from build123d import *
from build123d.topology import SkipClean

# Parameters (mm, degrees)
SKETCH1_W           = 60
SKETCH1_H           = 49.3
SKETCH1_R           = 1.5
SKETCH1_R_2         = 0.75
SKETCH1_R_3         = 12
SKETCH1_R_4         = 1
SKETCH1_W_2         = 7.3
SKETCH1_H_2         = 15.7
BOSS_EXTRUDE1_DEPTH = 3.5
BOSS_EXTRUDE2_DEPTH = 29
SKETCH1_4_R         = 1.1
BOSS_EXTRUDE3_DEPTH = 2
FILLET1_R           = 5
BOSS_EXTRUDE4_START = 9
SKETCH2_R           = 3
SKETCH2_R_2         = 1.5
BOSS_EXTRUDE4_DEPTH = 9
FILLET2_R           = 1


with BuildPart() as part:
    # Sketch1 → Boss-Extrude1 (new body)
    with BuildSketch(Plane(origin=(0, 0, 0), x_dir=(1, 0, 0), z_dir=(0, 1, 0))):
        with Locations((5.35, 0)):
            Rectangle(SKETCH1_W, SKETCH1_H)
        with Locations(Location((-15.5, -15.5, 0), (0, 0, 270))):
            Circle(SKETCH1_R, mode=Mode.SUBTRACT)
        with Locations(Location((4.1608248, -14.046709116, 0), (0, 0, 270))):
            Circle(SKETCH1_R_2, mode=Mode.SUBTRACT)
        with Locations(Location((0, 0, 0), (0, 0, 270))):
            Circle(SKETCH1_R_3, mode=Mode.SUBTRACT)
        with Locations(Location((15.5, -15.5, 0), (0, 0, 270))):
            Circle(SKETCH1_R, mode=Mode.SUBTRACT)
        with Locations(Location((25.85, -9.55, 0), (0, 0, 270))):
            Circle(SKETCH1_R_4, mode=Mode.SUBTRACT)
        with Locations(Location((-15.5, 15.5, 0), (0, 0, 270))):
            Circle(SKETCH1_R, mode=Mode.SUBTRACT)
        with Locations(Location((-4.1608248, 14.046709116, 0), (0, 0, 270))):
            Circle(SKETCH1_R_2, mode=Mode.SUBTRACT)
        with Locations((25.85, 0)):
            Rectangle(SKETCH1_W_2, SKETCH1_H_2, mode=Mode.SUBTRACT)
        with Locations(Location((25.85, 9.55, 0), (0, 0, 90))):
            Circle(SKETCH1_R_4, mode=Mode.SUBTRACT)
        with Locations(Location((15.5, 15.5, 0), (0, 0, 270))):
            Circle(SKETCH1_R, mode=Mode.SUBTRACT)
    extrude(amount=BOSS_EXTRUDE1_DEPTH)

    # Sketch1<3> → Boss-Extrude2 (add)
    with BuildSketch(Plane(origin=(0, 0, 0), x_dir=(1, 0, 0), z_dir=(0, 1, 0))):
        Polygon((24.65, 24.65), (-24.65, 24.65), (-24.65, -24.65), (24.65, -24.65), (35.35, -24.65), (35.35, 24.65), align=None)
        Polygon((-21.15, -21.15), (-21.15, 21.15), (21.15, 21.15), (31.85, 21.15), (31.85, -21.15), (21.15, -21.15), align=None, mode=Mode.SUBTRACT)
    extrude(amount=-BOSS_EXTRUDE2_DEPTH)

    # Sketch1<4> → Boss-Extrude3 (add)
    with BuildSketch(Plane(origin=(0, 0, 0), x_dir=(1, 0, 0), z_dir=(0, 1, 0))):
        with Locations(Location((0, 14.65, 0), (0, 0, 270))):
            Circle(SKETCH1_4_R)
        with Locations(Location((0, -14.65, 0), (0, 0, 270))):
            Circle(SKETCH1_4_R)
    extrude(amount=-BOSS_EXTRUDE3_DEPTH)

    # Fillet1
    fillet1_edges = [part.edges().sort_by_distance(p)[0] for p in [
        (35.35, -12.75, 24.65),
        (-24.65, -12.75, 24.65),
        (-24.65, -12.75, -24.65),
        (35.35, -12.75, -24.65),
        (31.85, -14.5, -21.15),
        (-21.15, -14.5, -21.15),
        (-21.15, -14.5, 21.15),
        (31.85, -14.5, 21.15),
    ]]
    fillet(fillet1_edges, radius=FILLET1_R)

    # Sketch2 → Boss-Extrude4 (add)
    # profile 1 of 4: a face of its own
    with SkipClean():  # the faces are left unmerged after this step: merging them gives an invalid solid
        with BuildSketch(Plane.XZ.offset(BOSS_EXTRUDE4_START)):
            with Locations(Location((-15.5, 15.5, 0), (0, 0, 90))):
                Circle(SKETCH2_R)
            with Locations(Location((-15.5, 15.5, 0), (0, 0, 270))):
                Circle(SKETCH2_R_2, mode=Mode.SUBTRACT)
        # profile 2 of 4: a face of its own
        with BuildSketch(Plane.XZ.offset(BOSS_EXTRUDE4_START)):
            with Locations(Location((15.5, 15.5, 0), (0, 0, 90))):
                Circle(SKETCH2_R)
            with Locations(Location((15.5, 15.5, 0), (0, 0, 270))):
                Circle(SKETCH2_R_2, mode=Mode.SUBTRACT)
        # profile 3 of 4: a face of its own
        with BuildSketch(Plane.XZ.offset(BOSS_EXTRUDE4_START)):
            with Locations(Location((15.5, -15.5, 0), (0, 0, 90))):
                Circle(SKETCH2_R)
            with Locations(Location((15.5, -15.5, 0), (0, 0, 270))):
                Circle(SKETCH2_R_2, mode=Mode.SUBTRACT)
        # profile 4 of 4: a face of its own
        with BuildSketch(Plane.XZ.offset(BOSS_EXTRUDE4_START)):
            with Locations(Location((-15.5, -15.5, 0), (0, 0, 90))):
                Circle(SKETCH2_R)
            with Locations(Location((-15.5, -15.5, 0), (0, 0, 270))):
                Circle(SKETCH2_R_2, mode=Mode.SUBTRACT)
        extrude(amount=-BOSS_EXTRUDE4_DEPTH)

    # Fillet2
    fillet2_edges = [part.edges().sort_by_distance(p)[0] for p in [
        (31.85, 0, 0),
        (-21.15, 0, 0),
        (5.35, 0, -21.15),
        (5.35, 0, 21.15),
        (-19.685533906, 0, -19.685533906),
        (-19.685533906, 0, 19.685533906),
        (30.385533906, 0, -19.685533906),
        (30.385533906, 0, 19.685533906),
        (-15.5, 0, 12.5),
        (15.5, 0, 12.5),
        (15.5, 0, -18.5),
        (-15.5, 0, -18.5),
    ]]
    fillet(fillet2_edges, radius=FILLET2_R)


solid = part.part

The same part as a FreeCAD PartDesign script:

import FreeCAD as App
import Part
import Sketcher
from FreeCAD import Vector
Q = App.Units.Quantity


def edges_at(feature, points):
    """Names of the edges that pass closest to the given points."""
    edges = feature.Shape.Edges
    near = lambda p: min(range(len(edges)), key=lambda i: edges[i].distToShape(Part.Vertex(*p))[0])
    return sorted({f"Edge{near(p) + 1}" for p in points})

doc = App.newDocument("Part")
body = doc.addObject("PartDesign::Body", "Body")

sketch1 = body.newObject("Sketcher::SketchObject", "Sketch")
sketch1.AttachmentSupport = (doc.getObject("XZ_Plane"), [""])
sketch1.MapMode = "FlatFace"
sketch1.addGeometry([
    Part.LineSegment(Vector(-24.6, -24.6, 0), Vector(-24.6, 24.6, 0)),
    Part.LineSegment(Vector(-24.6, 24.6, 0), Vector(35.4, 24.6, 0)),
    Part.LineSegment(Vector(35.4, 24.6, 0), Vector(35.4, -24.6, 0)),
    Part.LineSegment(Vector(35.4, -24.6, 0), Vector(-24.6, -24.6, 0)),
    Part.Circle(Vector(-15.5, 15.5, 0), Vector(0, 0, 1), 1.5),
    Part.Circle(Vector(4.2, 14, 0), Vector(0, 0, 1), 0.8),
    Part.Circle(Vector(15.5, 15.5, 0), Vector(0, 0, 1), 1.5),
    Part.Circle(Vector(25.9, 9.6, 0), Vector(0, 0, 1), 1),
    Part.Circle(Vector(0, 0, 0), Vector(0, 0, 1), 12),
    Part.Circle(Vector(-15.5, -15.5, 0), Vector(0, 0, 1), 1.5),
    Part.Circle(Vector(-4.2, -14, 0), Vector(0, 0, 1), 0.8),
    Part.LineSegment(Vector(29.5, 7.8, 0), Vector(22.2, 7.8, 0)),
    Part.LineSegment(Vector(22.2, 7.8, 0), Vector(22.2, -7.8, 0)),
    Part.LineSegment(Vector(22.2, -7.8, 0), Vector(29.5, -7.8, 0)),
    Part.LineSegment(Vector(29.5, -7.8, 0), Vector(29.5, 7.8, 0)),
    Part.Circle(Vector(15.5, -15.5, 0), Vector(0, 0, 1), 1.5),
    Part.Circle(Vector(25.9, -9.6, 0), Vector(0, 0, 1), 1),
], False)
sketch1.addConstraint([
    Sketcher.Constraint("Coincident", 0, 2, 1, 1),
    Sketcher.Constraint("Coincident", 1, 2, 2, 1),
    Sketcher.Constraint("Coincident", 2, 2, 3, 1),
    Sketcher.Constraint("Coincident", 3, 2, 0, 1),
    Sketcher.Constraint("Coincident", 11, 2, 12, 1),
    Sketcher.Constraint("Coincident", 12, 2, 13, 1),
    Sketcher.Constraint("Coincident", 13, 2, 14, 1),
    Sketcher.Constraint("Coincident", 14, 2, 11, 1),
    Sketcher.Constraint("Vertical", 0),
    Sketcher.Constraint("Horizontal", 1),
    Sketcher.Constraint("Vertical", 2),
    Sketcher.Constraint("Horizontal", 3),
    Sketcher.Constraint("Horizontal", 11),
    Sketcher.Constraint("Vertical", 12),
    Sketcher.Constraint("Horizontal", 13),
    Sketcher.Constraint("Vertical", 14),
    Sketcher.Constraint("Coincident", 8, 3, -1, 1),
    Sketcher.Constraint("Equal", 4, 6),
    Sketcher.Constraint("Equal", 6, 9),
    Sketcher.Constraint("Equal", 5, 10),
    Sketcher.Constraint("Equal", 9, 15),
    Sketcher.Constraint("Equal", 7, 16),
    Sketcher.Constraint("Symmetric", 6, 3, 9, 3, -1, 1),
    Sketcher.Constraint("Symmetric", 5, 3, 10, 3, -1, 1),
    Sketcher.Constraint("Symmetric", 4, 3, 15, 3, -1, 1),
    Sketcher.Constraint("Symmetric", 4, 3, 6, 3, -2),
    Sketcher.Constraint("Symmetric", 7, 3, 16, 3, -1),
    Sketcher.Constraint("Diameter", 4, Q("3 mm")),
    Sketcher.Constraint("Diameter", 7, Q("2 mm")),
    Sketcher.Constraint("Diameter", 8, Q("24 mm")),
    Sketcher.Constraint("Diameter", 5, Q("1.5 mm")),
    Sketcher.Constraint("DistanceX", 1, 1, 1, 2, Q("60 mm")),
    Sketcher.Constraint("DistanceX", 11, 2, 11, 1, Q("7.3 mm")),
    Sketcher.Constraint("DistanceY", 0, 1, 0, 2, Q("49.3 mm")),
    Sketcher.Constraint("DistanceY", 12, 2, 12, 1, Q("15.7 mm")),
    Sketcher.Constraint("DistanceX", 4, 3, 6, 3, Q("31 mm")),
    Sketcher.Constraint("DistanceY", 9, 3, 4, 3, Q("31 mm")),
    Sketcher.Constraint("DistanceX", 15, 3, 13, 2, Q("14 mm")),
    Sketcher.Constraint("DistanceY", 16, 3, 7, 3, Q("19.1 mm")),
    Sketcher.Constraint("DistanceX", 7, 3, 1, 2, Q("9.5 mm")),
    Sketcher.Constraint("DistanceY", 7, 3, 1, 2, Q("15.1 mm")),
    Sketcher.Constraint("DistanceY", 11, 2, 7, 3, Q("1.7 mm")),
    Sketcher.Constraint("DistanceX", -1, 1, 7, 3, Q("25.85 mm")),
    Sketcher.Constraint("DistanceY", -1, 1, 5, 3, Q("14.046709 mm")),
    Sketcher.Constraint("DistanceX", 10, 3, 5, 3, Q("8.32165 mm")),
])
pad1 = body.newObject("PartDesign::Pad", "Pad")
pad1.Profile = sketch1
pad1.Length = 3.5
pad1.Reversed = True

sketch2 = body.newObject("Sketcher::SketchObject", "Sketch001")
sketch2.AttachmentSupport = (doc.getObject("XZ_Plane"), [""])
sketch2.MapMode = "FlatFace"
sketch2.addGeometry([
    Part.LineSegment(Vector(-25, -25, 0), Vector(-25, 25, 0)),
    Part.LineSegment(Vector(-25, 25, 0), Vector(35, 25, 0)),
    Part.LineSegment(Vector(35, 25, 0), Vector(35, -25, 0)),
    Part.LineSegment(Vector(35, -25, 0), Vector(-25, -25, 0)),
    Part.LineSegment(Vector(32, 21, 0), Vector(-21, 21, 0)),
    Part.LineSegment(Vector(-21, 21, 0), Vector(-21, -21, 0)),
    Part.LineSegment(Vector(-21, -21, 0), Vector(32, -21, 0)),
    Part.LineSegment(Vector(32, -21, 0), Vector(32, 21, 0)),
], False)
sketch2.addConstraint([
    Sketcher.Constraint("Coincident", 0, 2, 1, 1),
    Sketcher.Constraint("Coincident", 1, 2, 2, 1),
    Sketcher.Constraint("Coincident", 2, 2, 3, 1),
    Sketcher.Constraint("Coincident", 3, 2, 0, 1),
    Sketcher.Constraint("Coincident", 4, 2, 5, 1),
    Sketcher.Constraint("Coincident", 5, 2, 6, 1),
    Sketcher.Constraint("Coincident", 6, 2, 7, 1),
    Sketcher.Constraint("Coincident", 7, 2, 4, 1),
    Sketcher.Constraint("Vertical", 0),
    Sketcher.Constraint("Horizontal", 1),
    Sketcher.Constraint("Vertical", 2),
    Sketcher.Constraint("Horizontal", 3),
    Sketcher.Constraint("Horizontal", 4),
    Sketcher.Constraint("Vertical", 5),
    Sketcher.Constraint("Horizontal", 6),
    Sketcher.Constraint("Vertical", 7),
    Sketcher.Constraint("DistanceX", 1, 1, 1, 2, Q("60 mm")),
    Sketcher.Constraint("DistanceX", 4, 2, 4, 1, Q("53 mm")),
    Sketcher.Constraint("DistanceY", 0, 1, 0, 2, Q("49.3 mm")),
    Sketcher.Constraint("DistanceY", 5, 2, 5, 1, Q("42.3 mm")),
    Sketcher.Constraint("DistanceX", 0, 2, 4, 2, Q("3.5 mm")),
    Sketcher.Constraint("DistanceY", 4, 2, 0, 2, Q("3.5 mm")),
    Sketcher.Constraint("DistanceX", 0, 2, -1, 1, Q("24.65 mm")),
    Sketcher.Constraint("DistanceY", -1, 1, 0, 2, Q("24.65 mm")),
])
pad2 = body.newObject("PartDesign::Pad", "Pad001")
pad2.Profile = sketch2
pad2.Length = 29

sketch3 = body.newObject("Sketcher::SketchObject", "Sketch002")
sketch3.AttachmentSupport = (doc.getObject("XZ_Plane"), [""])
sketch3.MapMode = "FlatFace"
sketch3.addGeometry([
    Part.Circle(Vector(0, -14.7, 0), Vector(0, 0, 1), 1.1),
    Part.Circle(Vector(0, 14.7, 0), Vector(0, 0, 1), 1.1),
], False)
sketch3.addConstraint([
    Sketcher.Constraint("Equal", 0, 1),
    Sketcher.Constraint("Symmetric", 0, 3, 1, 3, -1, 1),
    Sketcher.Constraint("PointOnObject", 0, 3, -2),
    Sketcher.Constraint("Diameter", 0, Q("2.2 mm")),
    Sketcher.Constraint("DistanceY", 0, 3, 1, 3, Q("29.3 mm")),
])
pad3 = body.newObject("PartDesign::Pad", "Pad002")
pad3.Profile = sketch3
pad3.Length = 2
doc.recompute()

fillet = body.newObject("PartDesign::Fillet", "Fillet")
fillet.Base = (pad3, edges_at(pad3, [
    (35.35, -12.75, 24.65),
    (-24.65, -12.75, 24.65),
    (-24.65, -12.75, -24.65),
    (35.35, -12.75, -24.65),
    (31.85, -14.5, -21.15),
    (-21.15, -14.5, -21.15),
    (-21.15, -14.5, 21.15),
    (31.85, -14.5, 21.15),
]))
fillet.Radius = 5

sketch4 = body.newObject("Sketcher::SketchObject", "Sketch003")
sketch4.AttachmentSupport = (doc.getObject("XZ_Plane"), [""])
sketch4.MapMode = "FlatFace"
sketch4.AttachmentOffset = App.Placement(Vector(0, 0, 9), App.Rotation())
sketch4.addGeometry([
    Part.Circle(Vector(-15.5, 15.5, 0), Vector(0, 0, 1), 3),
    Part.Circle(Vector(-15.5, 15.5, 0), Vector(0, 0, 1), 1.5),
    Part.Circle(Vector(15.5, 15.5, 0), Vector(0, 0, 1), 3),
    Part.Circle(Vector(15.5, 15.5, 0), Vector(0, 0, 1), 1.5),
    Part.Circle(Vector(15.5, -15.5, 0), Vector(0, 0, 1), 3),
    Part.Circle(Vector(15.5, -15.5, 0), Vector(0, 0, 1), 1.5),
    Part.Circle(Vector(-15.5, -15.5, 0), Vector(0, 0, 1), 3),
    Part.Circle(Vector(-15.5, -15.5, 0), Vector(0, 0, 1), 1.5),
], False)
sketch4.addConstraint([
    Sketcher.Constraint("Coincident", 1, 3, 0, 3),
    Sketcher.Constraint("Coincident", 3, 3, 2, 3),
    Sketcher.Constraint("Coincident", 5, 3, 4, 3),
    Sketcher.Constraint("Coincident", 7, 3, 6, 3),
    Sketcher.Constraint("Equal", 0, 2),
    Sketcher.Constraint("Equal", 1, 3),
    Sketcher.Constraint("Equal", 2, 4),
    Sketcher.Constraint("Equal", 3, 5),
    Sketcher.Constraint("Equal", 4, 6),
    Sketcher.Constraint("Equal", 5, 7),
    Sketcher.Constraint("Symmetric", 0, 3, 4, 3, -1, 1),
    Sketcher.Constraint("Symmetric", 2, 3, 6, 3, -1, 1),
    Sketcher.Constraint("Symmetric", 0, 3, 2, 3, -2),
    Sketcher.Constraint("Diameter", 0, Q("6 mm")),
    Sketcher.Constraint("Diameter", 1, Q("3 mm")),
    Sketcher.Constraint("DistanceX", 0, 3, 2, 3, Q("31 mm")),
    Sketcher.Constraint("DistanceY", 4, 3, 2, 3, Q("31 mm")),
])
pad4 = body.newObject("PartDesign::Pad", "Pad003")
pad4.Profile = sketch4
pad4.Length = 9
pad4.Reversed = True
doc.recompute()

fillet2 = body.newObject("PartDesign::Fillet", "Fillet001")
fillet2.Base = (pad4, edges_at(pad4, [
    (31.85, 0, 0),
    (-21.15, 0, 0),
    (5.35, 0, -21.15),
    (5.35, 0, 21.15),
    (-19.686, 0, -19.686),
    (-19.686, 0, 19.686),
    (30.386, 0, -19.686),
    (30.386, 0, 19.686),
    (-15.5, 0, 12.5),
    (15.5, 0, 12.5),
    (15.5, 0, -18.5),
    (-15.5, 0, -18.5),
]))
fillet2.Radius = 1

doc.recompute()
